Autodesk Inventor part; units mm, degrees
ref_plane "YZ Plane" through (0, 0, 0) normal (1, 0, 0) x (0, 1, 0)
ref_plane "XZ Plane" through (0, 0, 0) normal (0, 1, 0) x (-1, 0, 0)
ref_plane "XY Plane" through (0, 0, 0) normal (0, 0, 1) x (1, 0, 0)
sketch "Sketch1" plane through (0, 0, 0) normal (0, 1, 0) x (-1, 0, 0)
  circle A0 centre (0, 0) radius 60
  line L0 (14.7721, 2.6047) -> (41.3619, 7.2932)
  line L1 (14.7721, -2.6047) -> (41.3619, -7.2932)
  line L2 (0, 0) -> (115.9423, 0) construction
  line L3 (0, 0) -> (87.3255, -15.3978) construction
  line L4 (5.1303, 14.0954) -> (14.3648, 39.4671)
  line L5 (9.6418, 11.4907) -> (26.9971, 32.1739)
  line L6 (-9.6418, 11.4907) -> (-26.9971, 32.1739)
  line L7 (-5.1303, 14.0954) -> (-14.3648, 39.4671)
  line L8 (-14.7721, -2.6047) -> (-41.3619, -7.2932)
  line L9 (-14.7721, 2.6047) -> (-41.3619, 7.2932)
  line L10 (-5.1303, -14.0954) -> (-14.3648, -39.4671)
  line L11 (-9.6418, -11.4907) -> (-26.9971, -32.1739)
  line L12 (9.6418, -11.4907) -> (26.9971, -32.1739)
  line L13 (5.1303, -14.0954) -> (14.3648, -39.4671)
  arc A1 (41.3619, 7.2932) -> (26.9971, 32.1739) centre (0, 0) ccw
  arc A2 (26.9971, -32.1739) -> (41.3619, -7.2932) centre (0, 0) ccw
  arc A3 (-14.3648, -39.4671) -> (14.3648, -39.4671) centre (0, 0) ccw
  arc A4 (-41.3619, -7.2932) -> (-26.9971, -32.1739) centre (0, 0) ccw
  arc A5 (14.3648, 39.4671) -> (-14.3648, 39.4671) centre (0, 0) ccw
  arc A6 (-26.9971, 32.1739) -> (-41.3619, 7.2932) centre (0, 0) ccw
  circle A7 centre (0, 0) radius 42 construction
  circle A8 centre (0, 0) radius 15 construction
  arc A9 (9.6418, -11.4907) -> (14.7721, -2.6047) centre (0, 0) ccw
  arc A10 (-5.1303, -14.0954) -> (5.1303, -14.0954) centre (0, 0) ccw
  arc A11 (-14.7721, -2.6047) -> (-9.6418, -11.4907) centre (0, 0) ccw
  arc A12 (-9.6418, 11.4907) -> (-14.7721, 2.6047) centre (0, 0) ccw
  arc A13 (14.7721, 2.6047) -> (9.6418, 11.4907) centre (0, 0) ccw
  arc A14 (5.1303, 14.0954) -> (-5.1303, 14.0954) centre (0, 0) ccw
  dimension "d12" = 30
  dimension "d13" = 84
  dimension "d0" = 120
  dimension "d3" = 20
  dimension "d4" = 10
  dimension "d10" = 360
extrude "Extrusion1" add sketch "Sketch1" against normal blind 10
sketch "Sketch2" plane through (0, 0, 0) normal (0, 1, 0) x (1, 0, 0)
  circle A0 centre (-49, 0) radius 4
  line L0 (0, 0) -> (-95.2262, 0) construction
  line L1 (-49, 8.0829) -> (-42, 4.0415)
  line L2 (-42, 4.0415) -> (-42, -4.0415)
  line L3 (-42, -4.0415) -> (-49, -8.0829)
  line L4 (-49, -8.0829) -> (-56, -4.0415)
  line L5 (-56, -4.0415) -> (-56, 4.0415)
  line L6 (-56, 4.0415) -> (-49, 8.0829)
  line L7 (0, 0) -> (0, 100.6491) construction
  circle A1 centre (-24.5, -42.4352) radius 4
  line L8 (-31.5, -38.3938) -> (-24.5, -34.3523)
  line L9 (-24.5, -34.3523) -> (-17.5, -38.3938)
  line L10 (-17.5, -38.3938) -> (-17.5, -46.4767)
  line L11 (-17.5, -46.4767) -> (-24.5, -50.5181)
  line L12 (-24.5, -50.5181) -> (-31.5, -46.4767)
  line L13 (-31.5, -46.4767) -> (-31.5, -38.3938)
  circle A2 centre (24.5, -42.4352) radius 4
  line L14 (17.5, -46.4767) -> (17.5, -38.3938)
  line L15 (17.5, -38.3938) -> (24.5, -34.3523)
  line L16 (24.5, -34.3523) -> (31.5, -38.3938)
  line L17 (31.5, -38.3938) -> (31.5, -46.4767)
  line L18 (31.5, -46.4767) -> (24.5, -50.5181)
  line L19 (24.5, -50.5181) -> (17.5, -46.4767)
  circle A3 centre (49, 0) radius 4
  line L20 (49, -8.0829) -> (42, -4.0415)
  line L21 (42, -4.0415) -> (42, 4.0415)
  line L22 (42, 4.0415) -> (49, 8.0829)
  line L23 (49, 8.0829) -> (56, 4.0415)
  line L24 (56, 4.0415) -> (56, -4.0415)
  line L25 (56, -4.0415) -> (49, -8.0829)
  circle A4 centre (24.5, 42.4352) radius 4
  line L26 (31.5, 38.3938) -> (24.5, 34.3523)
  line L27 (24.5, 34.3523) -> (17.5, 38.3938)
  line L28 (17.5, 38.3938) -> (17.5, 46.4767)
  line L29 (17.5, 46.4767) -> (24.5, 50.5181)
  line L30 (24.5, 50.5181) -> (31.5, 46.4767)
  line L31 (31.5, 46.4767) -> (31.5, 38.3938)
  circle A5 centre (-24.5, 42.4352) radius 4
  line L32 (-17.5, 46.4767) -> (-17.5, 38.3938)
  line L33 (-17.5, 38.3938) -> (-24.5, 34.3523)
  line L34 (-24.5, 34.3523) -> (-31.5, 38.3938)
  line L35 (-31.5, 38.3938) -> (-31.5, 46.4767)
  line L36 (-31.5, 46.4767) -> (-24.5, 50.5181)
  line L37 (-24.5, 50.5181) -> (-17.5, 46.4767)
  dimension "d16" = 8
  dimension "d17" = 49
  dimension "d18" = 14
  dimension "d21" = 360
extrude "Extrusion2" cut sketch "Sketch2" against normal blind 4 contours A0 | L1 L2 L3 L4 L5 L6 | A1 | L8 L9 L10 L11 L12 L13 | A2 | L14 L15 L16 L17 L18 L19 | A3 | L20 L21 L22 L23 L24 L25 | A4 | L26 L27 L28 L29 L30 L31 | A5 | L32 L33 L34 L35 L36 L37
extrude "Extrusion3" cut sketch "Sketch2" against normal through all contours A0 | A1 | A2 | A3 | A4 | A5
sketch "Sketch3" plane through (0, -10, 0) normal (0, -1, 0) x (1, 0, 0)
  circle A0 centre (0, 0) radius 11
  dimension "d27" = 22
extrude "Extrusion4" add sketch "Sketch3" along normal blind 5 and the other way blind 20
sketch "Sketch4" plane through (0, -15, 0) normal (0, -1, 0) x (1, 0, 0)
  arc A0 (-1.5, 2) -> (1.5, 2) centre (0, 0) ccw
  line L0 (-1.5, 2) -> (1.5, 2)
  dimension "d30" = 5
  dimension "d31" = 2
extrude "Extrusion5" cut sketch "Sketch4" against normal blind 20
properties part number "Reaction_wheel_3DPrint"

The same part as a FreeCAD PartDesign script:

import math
import FreeCAD as App
import Part
import Sketcher
Q = App.Units.Quantity

doc = App.newDocument("Part")
body = doc.addObject("PartDesign::Body", "Body")

sketch1 = doc.addObject("Sketcher::SketchObject", "Sketch")
body.addObject(sketch1)
sketch1.AttachmentSupport = (doc.XZ_Plane, [""])
sketch1.MapMode = "FlatFace"
sketch1.addGeometry([
    Part.Circle(App.Vector(0, 0, 0), App.Vector(0, 0, 1), 60),
    Part.LineSegment(App.Vector(41, -7, 0), App.Vector(15, -3, 0)),
    Part.ArcOfCircle(Part.Circle(App.Vector(0, 0, 0), App.Vector(0, 0, 1), 15), math.radians(-50), math.radians(-10)),
    Part.LineSegment(App.Vector(10, -11, 0), App.Vector(27, -32, 0)),
    Part.ArcOfCircle(Part.Circle(App.Vector(0, 0, 0), App.Vector(0, 0, 1), 42), math.radians(-50), math.radians(-10)),
    Part.LineSegment(App.Vector(14, -39, 0), App.Vector(5, -14, 0)),
    Part.ArcOfCircle(Part.Circle(App.Vector(0, 0, 0), App.Vector(0, 0, 1), 15), math.radians(-110), math.radians(-70)),
    Part.LineSegment(App.Vector(-5, -14, 0), App.Vector(-14, -39, 0)),
    Part.ArcOfCircle(Part.Circle(App.Vector(0, 0, 0), App.Vector(0, 0, 1), 42), math.radians(-110), math.radians(-70)),
    Part.ArcOfCircle(Part.Circle(App.Vector(0, 0, 0), App.Vector(0, 0, 1), 15), math.radians(-170), math.radians(-130)),
    Part.LineSegment(App.Vector(-15, -3, 0), App.Vector(-41, -7, 0)),
    Part.ArcOfCircle(Part.Circle(App.Vector(0, 0, 0), App.Vector(0, 0, 1), 42), math.radians(-170), math.radians(-130)),
    Part.LineSegment(App.Vector(-27, -32, 0), App.Vector(-10, -11, 0)),
    Part.LineSegment(App.Vector(27, 32, 0), App.Vector(10, 11, 0)),
    Part.ArcOfCircle(Part.Circle(App.Vector(0, 0, 0), App.Vector(0, 0, 1), 15), math.radians(10), math.radians(50)),
    Part.LineSegment(App.Vector(15, 3, 0), App.Vector(41, 7, 0)),
    Part.ArcOfCircle(Part.Circle(App.Vector(0, 0, 0), App.Vector(0, 0, 1), 42), math.radians(10), math.radians(50)),
    Part.LineSegment(App.Vector(-14, 39, 0), App.Vector(-5, 14, 0)),
    Part.ArcOfCircle(Part.Circle(App.Vector(0, 0, 0), App.Vector(0, 0, 1), 15), math.radians(70), math.radians(110)),
    Part.LineSegment(App.Vector(5, 14, 0), App.Vector(14, 39, 0)),
    Part.ArcOfCircle(Part.Circle(App.Vector(0, 0, 0), App.Vector(0, 0, 1), 42), math.radians(70), math.radians(110)),
    Part.LineSegment(App.Vector(-41, 7, 0), App.Vector(-15, 3, 0)),
    Part.ArcOfCircle(Part.Circle(App.Vector(0, 0, 0), App.Vector(0, 0, 1), 15), math.radians(130), math.radians(170)),
    Part.LineSegment(App.Vector(-10, 11, 0), App.Vector(-27, 32, 0)),
    Part.ArcOfCircle(Part.Circle(App.Vector(0, 0, 0), App.Vector(0, 0, 1), 42), math.radians(130), math.radians(170)),
], False)
sketch1.addConstraint([
    Sketcher.Constraint("Coincident", 1, 2, 2, 2),
    Sketcher.Constraint("Coincident", 2, 1, 3, 1),
    Sketcher.Constraint("Coincident", 3, 2, 4, 1),
    Sketcher.Constraint("Coincident", 4, 2, 1, 1),
    Sketcher.Constraint("Coincident", 5, 2, 6, 2),
    Sketcher.Constraint("Coincident", 6, 1, 7, 1),
    Sketcher.Constraint("Coincident", 7, 2, 8, 1),
    Sketcher.Constraint("Coincident", 8, 2, 5, 1),
    Sketcher.Constraint("Coincident", 9, 1, 10, 1),
    Sketcher.Constraint("Coincident", 10, 2, 11, 1),
    Sketcher.Constraint("Coincident", 11, 2, 12, 1),
    Sketcher.Constraint("Coincident", 12, 2, 9, 2),
    Sketcher.Constraint("Coincident", 13, 2, 14, 2),
    Sketcher.Constraint("Coincident", 14, 1, 15, 1),
    Sketcher.Constraint("Coincident", 15, 2, 16, 1),
    Sketcher.Constraint("Coincident", 16, 2, 13, 1),
    Sketcher.Constraint("Coincident", 17, 2, 18, 2),
    Sketcher.Constraint("Coincident", 18, 1, 19, 1),
    Sketcher.Constraint("Coincident", 19, 2, 20, 1),
    Sketcher.Constraint("Coincident", 20, 2, 17, 1),
    Sketcher.Constraint("Coincident", 21, 2, 22, 2),
    Sketcher.Constraint("Coincident", 22, 1, 23, 1),
    Sketcher.Constraint("Coincident", 23, 2, 24, 1),
    Sketcher.Constraint("Coincident", 24, 2, 21, 1),
    Sketcher.Constraint("Coincident", 0, 3, -1, 1),
    Sketcher.Constraint("Coincident", 2, 3, -1, 1),
    Sketcher.Constraint("Coincident", 4, 3, -1, 1),
    Sketcher.Constraint("Coincident", 6, 3, -1, 1),
    Sketcher.Constraint("Coincident", 8, 3, -1, 1),
    Sketcher.Constraint("Coincident", 9, 3, -1, 1),
    Sketcher.Constraint("Coincident", 11, 3, -1, 1),
    Sketcher.Constraint("Coincident", 14, 3, -1, 1),
    Sketcher.Constraint("Coincident", 16, 3, -1, 1),
    Sketcher.Constraint("Coincident", 18, 3, -1, 1),
    Sketcher.Constraint("Coincident", 20, 3, -1, 1),
    Sketcher.Constraint("Coincident", 22, 3, -1, 1),
    Sketcher.Constraint("Coincident", 24, 3, -1, 1),
    Sketcher.Constraint("Equal", 2, 6),
    Sketcher.Constraint("Equal", 4, 8),
    Sketcher.Constraint("Equal", 6, 9),
    Sketcher.Constraint("Equal", 8, 11),
    Sketcher.Constraint("Equal", 9, 14),
    Sketcher.Constraint("Equal", 11, 16),
    Sketcher.Constraint("Equal", 14, 18),
    Sketcher.Constraint("Equal", 16, 20),
    Sketcher.Constraint("Equal", 18, 22),
    Sketcher.Constraint("Equal", 20, 24),
    Sketcher.Constraint("Parallel", 12, 13),
    Sketcher.Constraint("Parallel", 10, 15),
    Sketcher.Constraint("Parallel", 5, 17),
    Sketcher.Constraint("Parallel", 7, 19),
    Sketcher.Constraint("Parallel", 1, 21),
    Sketcher.Constraint("Parallel", 3, 23),
    Sketcher.Constraint("Horizontal", 5, 2, 6, 1),
    Sketcher.Constraint("Horizontal", 7, 2, 8, 2),
    Sketcher.Constraint("Horizontal", 1, 2, 9, 1),
    Sketcher.Constraint("Horizontal", 4, 2, 10, 2),
    Sketcher.Constraint("Horizontal", 3, 2, 11, 2),
    Sketcher.Constraint("Horizontal", 2, 1, 12, 2),
    Sketcher.Constraint("Horizontal", 17, 2, 18, 1),
    Sketcher.Constraint("Horizontal", 14, 1, 21, 2),
    Sketcher.Constraint("Horizontal", 13, 2, 22, 1),
    Sketcher.Constraint("Vertical", 2, 1, 13, 2),
    Sketcher.Constraint("Vertical", 1, 2, 14, 1),
    Sketcher.Constraint("Vertical", 6, 1, 17, 2),
    Sketcher.Constraint("Diameter", 0, Q("120 mm")),
    Sketcher.Constraint("Radius", 2, Q("15 mm")),
    Sketcher.Constraint("Radius", 4, Q("42 mm")),
    Sketcher.Constraint("Angle", 15, Q("10 deg")),
    Sketcher.Constraint("Angle", 3, Q("-50 deg")),
    Sketcher.Constraint("Angle", 5, Q("110 deg")),
    Sketcher.Constraint("DistanceX", 13, 2, 15, 2, Q("31.72 mm")),
    Sketcher.Constraint("DistanceX", -1, 1, 1, 2, Q("14.772 mm")),
    Sketcher.Constraint("DistanceY", 7, 2, -1, 1, Q("39.467 mm")),
])
pad1 = doc.addObject("PartDesign::Pad", "Pad")
body.addObject(pad1)
pad1.Profile = sketch1
pad1.Length = 10

sketch2 = doc.addObject("Sketcher::SketchObject", "Sketch001")
body.addObject(sketch2)
sketch2.AttachmentSupport = (doc.XZ_Plane, [""])
sketch2.MapMode = "FlatFace"
sketch2.addGeometry([
    Part.LineSegment(App.Vector(-42, -4, 0), App.Vector(-49, -8, 0)),
    Part.LineSegment(App.Vector(-49, -8, 0), App.Vector(-56, -4, 0)),
    Part.LineSegment(App.Vector(-56, -4, 0), App.Vector(-56, 4, 0)),
    Part.LineSegment(App.Vector(-56, 4, 0), App.Vector(-49, 8, 0)),
    Part.LineSegment(App.Vector(-49, 8, 0), App.Vector(-42, 4, 0)),
    Part.LineSegment(App.Vector(-42, 4, 0), App.Vector(-42, -4, 0)),
    Part.LineSegment(App.Vector(-24, 34, 0), App.Vector(-32, 38, 0)),
    Part.LineSegment(App.Vector(-32, 38, 0), App.Vector(-32, 46, 0)),
    Part.LineSegment(App.Vector(-32, 46, 0), App.Vector(-24, 51, 0)),
    Part.LineSegment(App.Vector(-24, 51, 0), App.Vector(-18, 46, 0)),
    Part.LineSegment(App.Vector(-18, 46, 0), App.Vector(-18, 38, 0)),
    Part.LineSegment(App.Vector(-18, 38, 0), App.Vector(-24, 34, 0)),
    Part.LineSegment(App.Vector(18, 38, 0), App.Vector(18, 46, 0)),
    Part.LineSegment(App.Vector(18, 46, 0), App.Vector(24, 51, 0)),
    Part.LineSegment(App.Vector(24, 51, 0), App.Vector(32, 46, 0)),
    Part.LineSegment(App.Vector(32, 46, 0), App.Vector(32, 38, 0)),
    Part.LineSegment(App.Vector(32, 38, 0), App.Vector(24, 34, 0)),
    Part.LineSegment(App.Vector(24, 34, 0), App.Vector(18, 38, 0)),
    Part.LineSegment(App.Vector(42, 4, 0), App.Vector(49, 8, 0)),
    Part.LineSegment(App.Vector(49, 8, 0), App.Vector(56, 4, 0)),
    Part.LineSegment(App.Vector(56, 4, 0), App.Vector(56, -4, 0)),
    Part.LineSegment(App.Vector(56, -4, 0), App.Vector(49, -8, 0)),
    Part.LineSegment(App.Vector(49, -8, 0), App.Vector(42, -4, 0)),
    Part.LineSegment(App.Vector(42, -4, 0), App.Vector(42, 4, 0)),
    Part.LineSegment(App.Vector(24, -34, 0), App.Vector(32, -38, 0)),
    Part.LineSegment(App.Vector(32, -38, 0), App.Vector(32, -46, 0)),
    Part.LineSegment(App.Vector(32, -46, 0), App.Vector(24, -51, 0)),
    Part.LineSegment(App.Vector(24, -51, 0), App.Vector(18, -46, 0)),
    Part.LineSegment(App.Vector(18, -46, 0), App.Vector(18, -38, 0)),
    Part.LineSegment(App.Vector(18, -38, 0), App.Vector(24, -34, 0)),
    Part.LineSegment(App.Vector(-18, -38, 0), App.Vector(-18, -46, 0)),
    Part.LineSegment(App.Vector(-18, -46, 0), App.Vector(-24, -51, 0)),
    Part.LineSegment(App.Vector(-24, -51, 0), App.Vector(-32, -46, 0)),
    Part.LineSegment(App.Vector(-32, -46, 0), App.Vector(-32, -38, 0)),
    Part.LineSegment(App.Vector(-32, -38, 0), App.Vector(-24, -34, 0)),
    Part.LineSegment(App.Vector(-24, -34, 0), App.Vector(-18, -38, 0)),
], False)
sketch2.addConstraint([
    Sketcher.Constraint("Coincident", 0, 2, 1, 1),
    Sketcher.Constraint("Coincident", 1, 2, 2, 1),
    Sketcher.Constraint("Coincident", 2, 2, 3, 1),
    Sketcher.Constraint("Coincident", 3, 2, 4, 1),
    Sketcher.Constraint("Coincident", 4, 2, 5, 1),
    Sketcher.Constraint("Coincident", 5, 2, 0, 1),
    Sketcher.Constraint("Coincident", 6, 2, 7, 1),
    Sketcher.Constraint("Coincident", 7, 2, 8, 1),
    Sketcher.Constraint("Coincident", 8, 2, 9, 1),
    Sketcher.Constraint("Coincident", 9, 2, 10, 1),
    Sketcher.Constraint("Coincident", 10, 2, 11, 1),
    Sketcher.Constraint("Coincident", 11, 2, 6, 1),
    Sketcher.Constraint("Coincident", 12, 2, 13, 1),
    Sketcher.Constraint("Coincident", 13, 2, 14, 1),
    Sketcher.Constraint("Coincident", 14, 2, 15, 1),
    Sketcher.Constraint("Coincident", 15, 2, 16, 1),
    Sketcher.Constraint("Coincident", 16, 2, 17, 1),
    Sketcher.Constraint("Coincident", 17, 2, 12, 1),
    Sketcher.Constraint("Coincident", 18, 2, 19, 1),
    Sketcher.Constraint("Coincident", 19, 2, 20, 1),
    Sketcher.Constraint("Coincident", 20, 2, 21, 1),
    Sketcher.Constraint("Coincident", 21, 2, 22, 1),
    Sketcher.Constraint("Coincident", 22, 2, 23, 1),
    Sketcher.Constraint("Coincident", 23, 2, 18, 1),
    Sketcher.Constraint("Coincident", 24, 2, 25, 1),
    Sketcher.Constraint("Coincident", 25, 2, 26, 1),
    Sketcher.Constraint("Coincident", 26, 2, 27, 1),
    Sketcher.Constraint("Coincident", 27, 2, 28, 1),
    Sketcher.Constraint("Coincident", 28, 2, 29, 1),
    Sketcher.Constraint("Coincident", 29, 2, 24, 1),
    Sketcher.Constraint("Coincident", 30, 2, 31, 1),
    Sketcher.Constraint("Coincident", 31, 2, 32, 1),
    Sketcher.Constraint("Coincident", 32, 2, 33, 1),
    Sketcher.Constraint("Coincident", 33, 2, 34, 1),
    Sketcher.Constraint("Coincident", 34, 2, 35, 1),
    Sketcher.Constraint("Coincident", 35, 2, 30, 1),
    Sketcher.Constraint("Vertical", 2),
    Sketcher.Constraint("Vertical", 5),
    Sketcher.Constraint("Vertical", 7),
    Sketcher.Constraint("Vertical", 10),
    Sketcher.Constraint("Vertical", 12),
    Sketcher.Constraint("Vertical", 15),
    Sketcher.Constraint("Vertical", 20),
    Sketcher.Constraint("Vertical", 23),
    Sketcher.Constraint("Vertical", 25),
    Sketcher.Constraint("Vertical", 28),
    Sketcher.Constraint("Vertical", 30),
    Sketcher.Constraint("Vertical", 33),
    Sketcher.Constraint("Symmetric", 0, 2, 18, 2, -1, 1),
    Sketcher.Constraint("Symmetric", 1, 2, 19, 2, -1, 1),
    Sketcher.Constraint("Symmetric", 3, 2, 21, 2, -1, 1),
    Sketcher.Constraint("Symmetric", 4, 2, 22, 2, -1, 1),
    Sketcher.Constraint("Symmetric", 6, 2, 24, 2, -1, 1),
    Sketcher.Constraint("Symmetric", 8, 2, 26, 2, -1, 1),
    Sketcher.Constraint("Symmetric", 9, 2, 27, 2, -1, 1),
    Sketcher.Constraint("Symmetric", 11, 2, 29, 2, -1, 1),
    Sketcher.Constraint("Symmetric", 12, 2, 30, 2, -1, 1),
    Sketcher.Constraint("Symmetric", 13, 2, 31, 2, -1, 1),
    Sketcher.Constraint("Symmetric", 14, 2, 32, 2, -1, 1),
    Sketcher.Constraint("Symmetric", 16, 2, 34, 2, -1, 1),
    Sketcher.Constraint("Symmetric", 9, 2, 12, 2, -2),
    Sketcher.Constraint("Symmetric", 8, 2, 13, 2, -2),
    Sketcher.Constraint("Symmetric", 7, 2, 14, 2, -2),
    Sketcher.Constraint("Symmetric", 11, 2, 16, 2, -2),
    Sketcher.Constraint("Symmetric", 3, 2, 18, 2, -2),
    Sketcher.Constraint("Parallel", 0, 3),
    Sketcher.Constraint("Parallel", 1, 4),
    Sketcher.Constraint("Parallel", 4, 6),
    Sketcher.Constraint("Parallel", 3, 8),
    Sketcher.Constraint("Parallel", 6, 9),
    Sketcher.Constraint("Parallel", 8, 11),
    Sketcher.Constraint("Parallel", 11, 13),
    Sketcher.Constraint("Parallel", 13, 16),
    Sketcher.Constraint("Parallel", 14, 17),
    Sketcher.Constraint("Parallel", 16, 18),
    Sketcher.Constraint("Parallel", 18, 21),
    Sketcher.Constraint("Parallel", 21, 26),
    Sketcher.Constraint("Parallel", 26, 29),
    Sketcher.Constraint("Parallel", 31, 34),
    Sketcher.Constraint("Parallel", 32, 35),
    Sketcher.Constraint("Horizontal", 2, 2, 4, 2),
    Sketcher.Constraint("Horizontal", 7, 2, 9, 2),
    Sketcher.Constraint("Horizontal", 6, 2, 10, 2),
    Sketcher.Constraint("Equal", 5, 7),
    Sketcher.Constraint("Equal", 4, 6),
    Sketcher.Constraint("DistanceX", 0, 2, -1, 1, Q("49 mm")),
    Sketcher.Constraint("DistanceX", 2, 2, 4, 2, Q("14 mm")),
    Sketcher.Constraint("DistanceX", 7, 2, 12, 2, Q("49 mm")),
    Sketcher.Constraint("Angle", 0, Q("-150.0003 deg")),
    Sketcher.Constraint("DistanceY", 2, 1, 2, 2, Q("8.083 mm")),
    Sketcher.Constraint("DistanceY", -1, 1, 8, 2, Q("50.518 mm")),
])
pocket1 = doc.addObject("PartDesign::Pocket", "Pocket")
body.addObject(pocket1)
pocket1.Profile = sketch2
pocket1.Length = 4
pocket1.Reversed = True

sketch3 = doc.addObject("Sketcher::SketchObject", "Sketch002")
body.addObject(sketch3)
sketch3.AttachmentSupport = (doc.XZ_Plane, [""])
sketch3.MapMode = "FlatFace"
sketch3.addGeometry([
    Part.Circle(App.Vector(-49, 0, 0), App.Vector(0, 0, 1), 4),
    Part.Circle(App.Vector(-24.5, 42.4, 0), App.Vector(0, 0, 1), 4),
    Part.Circle(App.Vector(24.5, 42.4, 0), App.Vector(0, 0, 1), 4),
    Part.Circle(App.Vector(49, 0, 0), App.Vector(0, 0, 1), 4),
    Part.Circle(App.Vector(24.5, -42.4, 0), App.Vector(0, 0, 1), 4),
    Part.Circle(App.Vector(-24.5, -42.4, 0), App.Vector(0, 0, 1), 4),
], False)
sketch3.addConstraint([
    Sketcher.Constraint("Equal", 0, 1),
    Sketcher.Constraint("Equal", 1, 2),
    Sketcher.Constraint("Equal", 2, 3),
    Sketcher.Constraint("Equal", 3, 4),
    Sketcher.Constraint("Equal", 4, 5),
    Sketcher.Constraint("Symmetric", 0, 3, 3, 3, -1, 1),
    Sketcher.Constraint("Symmetric", 1, 3, 4, 3, -1, 1),
    Sketcher.Constraint("Symmetric", 2, 3, 5, 3, -1, 1),
    Sketcher.Constraint("Symmetric", 1, 3, 2, 3, -2),
    Sketcher.Constraint("PointOnObject", 0, 3, -1),
    Sketcher.Constraint("Diameter", 0, Q("8 mm")),
    Sketcher.Constraint("DistanceX", 0, 3, -1, 1, Q("49 mm")),
    Sketcher.Constraint("DistanceX", 1, 3, 2, 3, Q("49 mm")),
    Sketcher.Constraint("DistanceY", -1, 1, 1, 3, Q("42.4352 mm")),
])
pocket2 = doc.addObject("PartDesign::Pocket", "Pocket001")
body.addObject(pocket2)
pocket2.Profile = sketch3
pocket2.Type = "ThroughAll"
pocket2.Reversed = True

sketch4 = doc.addObject("Sketcher::SketchObject", "Sketch003")
body.addObject(sketch4)
sketch4.AttachmentSupport = (doc.XZ_Plane, [""])
sketch4.MapMode = "FlatFace"
sketch4.AttachmentOffset = App.Placement(App.Vector(0, 0, 10), App.Rotation())
sketch4.addGeometry(Part.Circle(App.Vector(0, 0, 0), App.Vector(0, 0, 1), 11), False)
sketch4.addConstraint([
    Sketcher.Constraint("Coincident", 0, 3, -1, 1),
    Sketcher.Constraint("Diameter", 0, Q("22 mm")),
])
pad2 = doc.addObject("PartDesign::Pad", "Pad001")
body.addObject(pad2)
pad2.Profile = sketch4
pad2.Type = "TwoLengths"
pad2.Length = 5
pad2.Length2 = 20

sketch5 = doc.addObject("Sketcher::SketchObject", "Sketch004")
body.addObject(sketch5)
sketch5.AttachmentSupport = (doc.XZ_Plane, [""])
sketch5.MapMode = "FlatFace"
sketch5.AttachmentOffset = App.Placement(App.Vector(0, 0, 15), App.Rotation())
sketch5.addGeometry([
    Part.LineSegment(App.Vector(1.5, 2, 0), App.Vector(-1.5, 2, 0)),
    Part.ArcOfCircle(Part.Circle(App.Vector(0, 0, 0), App.Vector(0, 0, 1), 2.5), math.radians(127), math.radians(413)),
], False)
sketch5.addConstraint([
    Sketcher.Constraint("Coincident", 0, 1, 1, 2),
    Sketcher.Constraint("Coincident", 1, 1, 0, 2),
    Sketcher.Constraint("Horizontal", 0),
    Sketcher.Constraint("Coincident", 1, 3, -1, 1),
    Sketcher.Constraint("Radius", 1, Q("2.5 mm")),
    Sketcher.Constraint("DistanceY", -1, 1, 0, 1, Q("2 mm")),
])
pocket3 = doc.addObject("PartDesign::Pocket", "Pocket002")
body.addObject(pocket3)
pocket3.Profile = sketch5
pocket3.Length = 20

doc.recompute()
